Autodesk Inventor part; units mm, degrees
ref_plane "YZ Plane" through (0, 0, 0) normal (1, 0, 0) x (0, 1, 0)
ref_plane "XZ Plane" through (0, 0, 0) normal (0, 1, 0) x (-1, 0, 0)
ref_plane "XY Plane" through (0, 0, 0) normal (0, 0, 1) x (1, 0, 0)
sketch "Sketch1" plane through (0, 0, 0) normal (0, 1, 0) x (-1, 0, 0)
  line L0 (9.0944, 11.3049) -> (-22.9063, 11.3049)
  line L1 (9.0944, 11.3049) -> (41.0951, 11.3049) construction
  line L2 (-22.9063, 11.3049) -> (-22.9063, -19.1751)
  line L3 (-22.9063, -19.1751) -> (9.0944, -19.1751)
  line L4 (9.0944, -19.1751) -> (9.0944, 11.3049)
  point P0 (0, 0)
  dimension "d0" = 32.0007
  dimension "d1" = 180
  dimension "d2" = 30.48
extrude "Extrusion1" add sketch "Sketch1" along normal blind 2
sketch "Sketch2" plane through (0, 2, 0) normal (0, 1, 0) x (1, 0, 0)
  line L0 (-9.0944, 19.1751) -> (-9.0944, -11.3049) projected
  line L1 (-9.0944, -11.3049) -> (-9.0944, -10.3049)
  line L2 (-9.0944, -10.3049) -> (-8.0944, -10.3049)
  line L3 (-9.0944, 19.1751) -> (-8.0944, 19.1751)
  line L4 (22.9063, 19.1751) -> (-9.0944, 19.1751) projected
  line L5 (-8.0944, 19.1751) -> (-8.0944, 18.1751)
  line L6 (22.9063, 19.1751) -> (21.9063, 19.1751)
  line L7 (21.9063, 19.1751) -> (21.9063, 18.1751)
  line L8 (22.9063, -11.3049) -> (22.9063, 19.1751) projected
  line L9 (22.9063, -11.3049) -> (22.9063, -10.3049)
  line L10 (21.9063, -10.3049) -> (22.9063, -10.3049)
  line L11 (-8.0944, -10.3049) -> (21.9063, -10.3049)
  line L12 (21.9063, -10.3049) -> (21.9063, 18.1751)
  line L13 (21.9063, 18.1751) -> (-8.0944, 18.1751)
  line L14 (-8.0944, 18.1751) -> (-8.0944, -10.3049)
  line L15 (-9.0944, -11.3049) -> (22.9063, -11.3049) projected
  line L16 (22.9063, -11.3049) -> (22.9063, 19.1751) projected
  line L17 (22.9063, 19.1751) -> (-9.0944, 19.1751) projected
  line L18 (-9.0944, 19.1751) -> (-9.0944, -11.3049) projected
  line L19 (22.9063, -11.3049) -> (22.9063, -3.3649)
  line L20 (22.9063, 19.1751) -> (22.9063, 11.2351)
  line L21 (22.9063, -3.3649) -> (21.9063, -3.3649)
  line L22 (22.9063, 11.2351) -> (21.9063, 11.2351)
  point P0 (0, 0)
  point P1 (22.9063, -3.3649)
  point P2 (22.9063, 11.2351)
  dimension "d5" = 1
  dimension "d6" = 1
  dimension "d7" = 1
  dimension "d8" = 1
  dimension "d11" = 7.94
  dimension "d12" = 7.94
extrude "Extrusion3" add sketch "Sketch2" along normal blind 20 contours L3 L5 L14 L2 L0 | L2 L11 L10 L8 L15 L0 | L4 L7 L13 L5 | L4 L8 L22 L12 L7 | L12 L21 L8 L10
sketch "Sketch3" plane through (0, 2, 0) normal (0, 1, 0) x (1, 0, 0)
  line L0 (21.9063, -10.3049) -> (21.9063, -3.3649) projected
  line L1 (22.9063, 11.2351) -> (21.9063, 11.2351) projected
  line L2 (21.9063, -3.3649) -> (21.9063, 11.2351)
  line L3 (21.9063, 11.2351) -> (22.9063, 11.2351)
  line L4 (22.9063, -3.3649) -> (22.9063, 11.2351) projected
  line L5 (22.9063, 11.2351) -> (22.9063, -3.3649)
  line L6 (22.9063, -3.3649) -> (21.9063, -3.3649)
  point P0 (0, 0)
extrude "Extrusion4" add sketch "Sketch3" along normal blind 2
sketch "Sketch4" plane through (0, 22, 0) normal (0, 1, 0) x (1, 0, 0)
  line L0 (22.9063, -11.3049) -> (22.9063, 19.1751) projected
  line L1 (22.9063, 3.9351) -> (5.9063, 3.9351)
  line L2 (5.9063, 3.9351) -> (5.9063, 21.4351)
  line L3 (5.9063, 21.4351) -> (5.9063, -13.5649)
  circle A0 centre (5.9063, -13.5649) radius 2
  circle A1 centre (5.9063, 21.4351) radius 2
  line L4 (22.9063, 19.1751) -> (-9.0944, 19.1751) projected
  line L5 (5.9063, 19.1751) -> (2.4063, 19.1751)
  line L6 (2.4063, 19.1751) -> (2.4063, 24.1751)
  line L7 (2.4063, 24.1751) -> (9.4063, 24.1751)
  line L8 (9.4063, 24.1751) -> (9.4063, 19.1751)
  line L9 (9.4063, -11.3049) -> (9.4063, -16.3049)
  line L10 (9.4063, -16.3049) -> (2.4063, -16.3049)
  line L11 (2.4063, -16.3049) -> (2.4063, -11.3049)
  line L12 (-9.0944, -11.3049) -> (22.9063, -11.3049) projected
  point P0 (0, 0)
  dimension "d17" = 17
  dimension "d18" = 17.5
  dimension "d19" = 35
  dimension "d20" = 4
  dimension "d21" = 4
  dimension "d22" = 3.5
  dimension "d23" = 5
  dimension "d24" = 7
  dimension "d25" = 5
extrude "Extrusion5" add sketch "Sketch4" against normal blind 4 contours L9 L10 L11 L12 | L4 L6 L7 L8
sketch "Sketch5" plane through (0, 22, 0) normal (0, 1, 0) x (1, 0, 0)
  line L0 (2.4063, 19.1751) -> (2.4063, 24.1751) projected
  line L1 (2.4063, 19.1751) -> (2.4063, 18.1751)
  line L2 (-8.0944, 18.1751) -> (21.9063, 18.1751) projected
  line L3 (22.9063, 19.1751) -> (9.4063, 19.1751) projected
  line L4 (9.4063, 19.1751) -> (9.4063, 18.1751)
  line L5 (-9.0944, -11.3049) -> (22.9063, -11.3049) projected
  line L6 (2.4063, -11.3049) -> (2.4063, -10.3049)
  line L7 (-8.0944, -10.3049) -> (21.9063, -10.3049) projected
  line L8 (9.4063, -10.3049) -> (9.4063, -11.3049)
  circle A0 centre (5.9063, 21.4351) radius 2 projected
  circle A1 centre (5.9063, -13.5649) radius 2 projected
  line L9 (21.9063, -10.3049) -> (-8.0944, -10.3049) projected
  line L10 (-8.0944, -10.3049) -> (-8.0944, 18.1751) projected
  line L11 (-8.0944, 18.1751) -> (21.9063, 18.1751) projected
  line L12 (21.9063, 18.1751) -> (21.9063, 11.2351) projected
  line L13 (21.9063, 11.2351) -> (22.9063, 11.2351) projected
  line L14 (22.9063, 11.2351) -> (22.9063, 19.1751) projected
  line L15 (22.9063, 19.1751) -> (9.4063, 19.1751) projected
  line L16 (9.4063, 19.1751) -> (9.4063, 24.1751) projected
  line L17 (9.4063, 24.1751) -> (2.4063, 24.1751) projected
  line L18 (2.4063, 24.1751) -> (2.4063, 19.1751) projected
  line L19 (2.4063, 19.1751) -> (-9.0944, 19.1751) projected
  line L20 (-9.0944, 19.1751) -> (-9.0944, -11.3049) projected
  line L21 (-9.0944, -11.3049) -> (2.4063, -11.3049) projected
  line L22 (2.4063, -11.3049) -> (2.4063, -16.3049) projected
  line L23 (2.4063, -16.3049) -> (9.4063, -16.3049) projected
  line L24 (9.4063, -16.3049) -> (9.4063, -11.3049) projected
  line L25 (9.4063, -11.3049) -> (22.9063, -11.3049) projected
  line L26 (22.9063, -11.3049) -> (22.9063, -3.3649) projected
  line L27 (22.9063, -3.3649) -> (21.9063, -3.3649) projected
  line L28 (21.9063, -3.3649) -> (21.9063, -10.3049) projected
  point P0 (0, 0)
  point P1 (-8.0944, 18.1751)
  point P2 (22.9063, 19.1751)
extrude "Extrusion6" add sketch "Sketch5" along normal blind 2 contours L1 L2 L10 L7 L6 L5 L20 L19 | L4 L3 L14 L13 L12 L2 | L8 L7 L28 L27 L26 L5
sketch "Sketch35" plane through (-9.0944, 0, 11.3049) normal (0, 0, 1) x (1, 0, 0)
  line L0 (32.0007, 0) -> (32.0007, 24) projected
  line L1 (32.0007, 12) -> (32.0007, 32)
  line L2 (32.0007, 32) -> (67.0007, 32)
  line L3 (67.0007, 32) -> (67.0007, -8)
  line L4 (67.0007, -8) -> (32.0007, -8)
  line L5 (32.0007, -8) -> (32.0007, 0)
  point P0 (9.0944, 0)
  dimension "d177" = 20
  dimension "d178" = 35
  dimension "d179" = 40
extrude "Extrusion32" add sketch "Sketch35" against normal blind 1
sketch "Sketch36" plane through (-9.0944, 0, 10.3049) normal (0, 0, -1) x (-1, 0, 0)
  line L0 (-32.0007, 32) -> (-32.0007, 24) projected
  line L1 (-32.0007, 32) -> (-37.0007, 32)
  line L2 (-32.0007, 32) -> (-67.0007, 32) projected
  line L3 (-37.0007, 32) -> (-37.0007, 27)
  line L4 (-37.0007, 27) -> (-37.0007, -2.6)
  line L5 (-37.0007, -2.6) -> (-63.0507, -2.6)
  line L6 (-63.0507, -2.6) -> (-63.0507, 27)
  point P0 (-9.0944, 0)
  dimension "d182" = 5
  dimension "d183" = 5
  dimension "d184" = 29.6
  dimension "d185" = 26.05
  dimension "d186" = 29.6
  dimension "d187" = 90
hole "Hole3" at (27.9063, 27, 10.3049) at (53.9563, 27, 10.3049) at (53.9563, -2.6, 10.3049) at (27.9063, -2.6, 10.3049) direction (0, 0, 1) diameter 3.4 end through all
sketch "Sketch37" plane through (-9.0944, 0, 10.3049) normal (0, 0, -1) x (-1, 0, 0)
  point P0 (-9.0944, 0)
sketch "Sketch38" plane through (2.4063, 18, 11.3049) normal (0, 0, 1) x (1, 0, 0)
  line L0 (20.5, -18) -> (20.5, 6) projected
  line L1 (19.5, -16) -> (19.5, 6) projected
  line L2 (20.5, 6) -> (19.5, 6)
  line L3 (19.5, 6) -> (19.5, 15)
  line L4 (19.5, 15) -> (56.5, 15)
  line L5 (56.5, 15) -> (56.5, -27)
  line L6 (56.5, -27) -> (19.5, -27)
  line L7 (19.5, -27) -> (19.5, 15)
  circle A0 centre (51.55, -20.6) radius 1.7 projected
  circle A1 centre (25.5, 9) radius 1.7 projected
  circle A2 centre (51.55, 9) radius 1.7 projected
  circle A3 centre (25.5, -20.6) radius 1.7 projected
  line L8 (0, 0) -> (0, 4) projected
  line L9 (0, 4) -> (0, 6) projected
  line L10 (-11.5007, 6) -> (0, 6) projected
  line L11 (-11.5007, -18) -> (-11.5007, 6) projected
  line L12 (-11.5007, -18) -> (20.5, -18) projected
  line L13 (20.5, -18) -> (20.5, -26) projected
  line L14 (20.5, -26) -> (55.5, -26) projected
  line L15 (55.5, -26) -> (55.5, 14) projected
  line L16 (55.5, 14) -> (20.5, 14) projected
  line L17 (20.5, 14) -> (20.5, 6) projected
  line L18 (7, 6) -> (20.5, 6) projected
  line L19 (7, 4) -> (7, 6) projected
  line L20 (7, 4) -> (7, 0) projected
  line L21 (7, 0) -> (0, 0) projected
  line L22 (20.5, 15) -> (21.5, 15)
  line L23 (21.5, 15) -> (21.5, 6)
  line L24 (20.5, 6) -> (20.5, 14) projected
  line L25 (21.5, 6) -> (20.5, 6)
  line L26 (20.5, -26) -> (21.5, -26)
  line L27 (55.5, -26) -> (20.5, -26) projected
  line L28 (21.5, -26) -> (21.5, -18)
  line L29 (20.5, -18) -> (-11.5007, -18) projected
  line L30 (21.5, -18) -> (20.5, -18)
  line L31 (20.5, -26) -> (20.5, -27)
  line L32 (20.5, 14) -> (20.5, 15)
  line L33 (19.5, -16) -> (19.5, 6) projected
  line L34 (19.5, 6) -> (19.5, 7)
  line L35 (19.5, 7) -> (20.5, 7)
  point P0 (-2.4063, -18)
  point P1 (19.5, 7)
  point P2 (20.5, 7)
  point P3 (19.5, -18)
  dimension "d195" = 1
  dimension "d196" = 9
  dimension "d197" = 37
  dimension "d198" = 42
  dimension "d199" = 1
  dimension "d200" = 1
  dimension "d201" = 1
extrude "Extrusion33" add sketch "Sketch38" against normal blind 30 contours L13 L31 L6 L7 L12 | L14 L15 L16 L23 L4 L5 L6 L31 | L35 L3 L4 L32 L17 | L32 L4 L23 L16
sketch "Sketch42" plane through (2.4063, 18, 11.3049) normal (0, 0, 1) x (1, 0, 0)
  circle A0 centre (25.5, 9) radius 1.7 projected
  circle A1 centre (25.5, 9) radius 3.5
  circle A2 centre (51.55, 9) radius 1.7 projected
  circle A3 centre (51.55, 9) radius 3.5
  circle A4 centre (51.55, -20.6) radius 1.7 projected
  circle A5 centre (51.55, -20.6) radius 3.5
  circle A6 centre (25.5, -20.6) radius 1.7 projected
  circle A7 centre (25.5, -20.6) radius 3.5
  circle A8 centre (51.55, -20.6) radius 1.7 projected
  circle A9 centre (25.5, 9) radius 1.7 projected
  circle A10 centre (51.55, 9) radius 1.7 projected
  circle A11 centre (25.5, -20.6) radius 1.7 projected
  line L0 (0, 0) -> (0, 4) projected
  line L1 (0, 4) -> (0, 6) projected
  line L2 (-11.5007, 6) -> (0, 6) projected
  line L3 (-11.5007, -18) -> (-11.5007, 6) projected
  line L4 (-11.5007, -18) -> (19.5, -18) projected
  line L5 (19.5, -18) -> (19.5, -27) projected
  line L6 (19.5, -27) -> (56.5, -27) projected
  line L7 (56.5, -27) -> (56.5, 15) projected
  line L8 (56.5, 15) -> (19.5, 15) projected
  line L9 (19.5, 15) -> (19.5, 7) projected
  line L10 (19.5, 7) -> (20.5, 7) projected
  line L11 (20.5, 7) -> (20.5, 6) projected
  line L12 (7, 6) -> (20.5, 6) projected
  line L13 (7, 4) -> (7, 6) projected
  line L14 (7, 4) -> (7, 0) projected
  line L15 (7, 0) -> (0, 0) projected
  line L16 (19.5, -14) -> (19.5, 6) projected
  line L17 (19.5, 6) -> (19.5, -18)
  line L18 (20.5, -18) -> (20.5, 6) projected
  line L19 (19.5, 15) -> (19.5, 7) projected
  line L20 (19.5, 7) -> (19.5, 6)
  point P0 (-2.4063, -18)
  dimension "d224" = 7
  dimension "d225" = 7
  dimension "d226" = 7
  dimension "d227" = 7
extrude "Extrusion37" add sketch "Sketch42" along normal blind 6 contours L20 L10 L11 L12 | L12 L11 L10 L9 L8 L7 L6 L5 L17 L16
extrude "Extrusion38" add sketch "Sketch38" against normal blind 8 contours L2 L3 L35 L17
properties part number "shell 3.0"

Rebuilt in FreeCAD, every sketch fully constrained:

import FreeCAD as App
import Part
import Sketcher
from FreeCAD import Vector
Q = App.Units.Quantity


def add_polygon(sketch, points):
    """Adds a closed chain of lines whose ends are joined by coincident constraints."""
    first, n = sketch.GeometryCount, len(points)
    for a, b in zip(points, points[1:] + points[:1]):
        sketch.addGeometry(Part.LineSegment(App.Vector(*a, 0), App.Vector(*b, 0)), False)
    for i in range(n):
        sketch.addConstraint(Sketcher.Constraint("Coincident", first + i, 2, first + (i + 1) % n, 1))

doc = App.newDocument("Part")
body = doc.addObject("PartDesign::Body", "Body")

# Sketch on XZ plane
sketch1 = doc.addObject("Sketcher::SketchObject", "Sketch")
body.addObject(sketch1)
sketch1.AttachmentSupport = (doc.XZ_Plane, [""])
sketch1.MapMode = "FlatFace"
add_polygon(sketch1, [(-9, -19), (-9, 11), (23, 11), (23, -19)])  # lines 0-3
sketch1.addConstraint([
    Sketcher.Constraint("Vertical", 0),
    Sketcher.Constraint("Horizontal", 1),
    Sketcher.Constraint("Vertical", 2),
    Sketcher.Constraint("Horizontal", 3),
    Sketcher.Constraint("DistanceY", 0, 1, 0, 2, Q("30.48 mm")),
    Sketcher.Constraint("DistanceX", 1, 1, 1, 2, Q("32.0007 mm")),
    Sketcher.Constraint("DistanceY", -1, 1, 0, 2, Q("11.305 mm")),
    Sketcher.Constraint("DistanceX", 0, 2, -1, 1, Q("9.0944 mm")),
])
pad1 = doc.addObject("PartDesign::Pad", "Pad")
body.addObject(pad1)
pad1.Profile = sketch1
pad1.Length = 2
pad1.Reversed = True

# Sketch on XZ plane
sketch2 = doc.addObject("Sketcher::SketchObject", "Sketch001")
body.addObject(sketch2)
sketch2.AttachmentSupport = (doc.XZ_Plane, [""])
sketch2.MapMode = "FlatFace"
sketch2.AttachmentOffset = App.Placement(Vector(0, 0, -2), App.Rotation())
add_polygon(sketch2, [(-9.1, -19.2), (-9.1, 11.3), (22.9, 11.3), (22.9, 3.4), (21.9, 3.4), (21.9, 10.3), (-8.1, 10.3), (-8.1, -18.2), (21.9, -18.2), (21.9, -11.2), (22.9, -11.2), (22.9, -19.2)])  # lines 0-11
sketch2.addConstraint([
    Sketcher.Constraint("Vertical", 0),
    Sketcher.Constraint("Horizontal", 1),
    Sketcher.Constraint("Vertical", 2),
    Sketcher.Constraint("Horizontal", 3),
    Sketcher.Constraint("Vertical", 4),
    Sketcher.Constraint("Horizontal", 5),
    Sketcher.Constraint("Vertical", 6),
    Sketcher.Constraint("Horizontal", 7),
    Sketcher.Constraint("Vertical", 8),
    Sketcher.Constraint("Horizontal", 9),
    Sketcher.Constraint("Vertical", 10),
    Sketcher.Constraint("Horizontal", 11),
    Sketcher.Constraint("Vertical", 4, 2, 7, 2),
    Sketcher.Constraint("Vertical", 2, 2, 9, 2),
    Sketcher.Constraint("Equal", 4, 8),
    Sketcher.Constraint("Equal", 2, 10),
    Sketcher.Constraint("DistanceX", 3, 2, 3, 1, Q("1 mm")),
    Sketcher.Constraint("DistanceY", 4, 2, 1, 2, Q("1 mm")),
    Sketcher.Constraint("DistanceX", 0, 2, 5, 2, Q("1 mm")),
    Sketcher.Constraint("DistanceY", 2, 2, 2, 1, Q("7.94 mm")),
    Sketcher.Constraint("DistanceY", 0, 1, 0, 2, Q("30.48 mm")),
    Sketcher.Constraint("DistanceX", 1, 1, 1, 2, Q("32.0007 mm")),
    Sketcher.Constraint("DistanceY", -1, 1, 0, 2, Q("11.305 mm")),
    Sketcher.Constraint("DistanceX", 0, 2, -1, 1, Q("9.0944 mm")),
])
pad2 = doc.addObject("PartDesign::Pad", "Pad001")
body.addObject(pad2)
pad2.Profile = sketch2
pad2.Length = 20
pad2.Reversed = True

# Sketch on XZ plane
sketch3 = doc.addObject("Sketcher::SketchObject", "Sketch002")
body.addObject(sketch3)
sketch3.AttachmentSupport = (doc.XZ_Plane, [""])
sketch3.MapMode = "FlatFace"
sketch3.AttachmentOffset = App.Placement(Vector(0, 0, -2), App.Rotation())
add_polygon(sketch3, [(22.9, 3.4), (22.9, -11.2), (21.9, -11.2), (21.9, 3.4)])  # lines 0-3
sketch3.addConstraint([
    Sketcher.Constraint("Vertical", 0),
    Sketcher.Constraint("Horizontal", 1),
    Sketcher.Constraint("Vertical", 2),
    Sketcher.Constraint("Horizontal", 3),
    Sketcher.Constraint("DistanceX", 1, 2, 1, 1, Q("1 mm")),
    Sketcher.Constraint("DistanceY", 0, 2, 0, 1, Q("14.6 mm")),
    Sketcher.Constraint("DistanceY", 0, 2, -1, 1, Q("11.235 mm")),
    Sketcher.Constraint("DistanceX", -1, 1, 0, 2, Q("22.9063 mm")),
])
pad3 = doc.addObject("PartDesign::Pad", "Pad002")
body.addObject(pad3)
pad3.Profile = sketch3
pad3.Length = 2
pad3.Reversed = True

# Sketch on XZ plane
sketch4 = doc.addObject("Sketcher::SketchObject", "Sketch003")
body.addObject(sketch4)
sketch4.AttachmentSupport = (doc.XZ_Plane, [""])
sketch4.MapMode = "FlatFace"
sketch4.AttachmentOffset = App.Placement(Vector(0, 0, -22), App.Rotation())
add_polygon(sketch4, [(9.4, 16.3), (9.4, 11.3), (5.9, 11.3), (2.4, 11.3), (2.4, 16.3)])  # lines 0-4
sketch4.addGeometry(Part.Circle(Vector(5.9, 13.6, 0), Vector(0, 0, 1), 2), False)  # 5
add_polygon(sketch4, [(5.9, -19.2), (9.4, -19.2), (9.4, -24.2), (2.4, -24.2), (2.4, -19.2)])  # lines 6-10
sketch4.addGeometry(Part.Circle(Vector(5.9, -21.4, 0), Vector(0, 0, 1), 2), False)  # 11
sketch4.addConstraint([
    Sketcher.Constraint("Vertical", 0),
    Sketcher.Constraint("Horizontal", 1),
    Sketcher.Constraint("Horizontal", 2),
    Sketcher.Constraint("Vertical", 3),
    Sketcher.Constraint("Horizontal", 4),
    Sketcher.Constraint("Horizontal", 6),
    Sketcher.Constraint("Vertical", 7),
    Sketcher.Constraint("Horizontal", 8),
    Sketcher.Constraint("Vertical", 9),
    Sketcher.Constraint("Horizontal", 10),
    Sketcher.Constraint("Equal", 5, 11),
    Sketcher.Constraint("Vertical", 5, 3, 11, 3),
    Sketcher.Constraint("Vertical", 11, 3, 1, 2),
    Sketcher.Constraint("Vertical", 4, 2, 6, 2),
    Sketcher.Constraint("Vertical", 3, 2, 8, 2),
    Sketcher.Constraint("Vertical", 1, 2, 10, 2),
    Sketcher.Constraint("Equal", 1, 2),
    Sketcher.Constraint("Equal", 3, 7),
    Sketcher.Constraint("Diameter", 5, Q("4 mm")),
    Sketcher.Constraint("DistanceX", 4, 1, 4, 2, Q("7 mm")),
    Sketcher.Constraint("DistanceY", 0, 2, 0, 1, Q("5 mm")),
    Sketcher.Constraint("DistanceY", 11, 3, 5, 3, Q("35 mm")),
    Sketcher.Constraint("DistanceY", 0, 2, 5, 3, Q("2.26 mm")),
    Sketcher.Constraint("DistanceY", 11, 3, 6, 2, Q("2.26 mm")),
    Sketcher.Constraint("DistanceY", -1, 1, 5, 3, Q("13.565 mm")),
    Sketcher.Constraint("DistanceX", -1, 1, 5, 3, Q("5.9063 mm")),
])
pad4 = doc.addObject("PartDesign::Pad", "Pad003")
body.addObject(pad4)
pad4.Profile = sketch4
pad4.Length = 4

# Sketch on XZ plane
sketch5 = doc.addObject("Sketcher::SketchObject", "Sketch004")
body.addObject(sketch5)
sketch5.AttachmentSupport = (doc.XZ_Plane, [""])
sketch5.MapMode = "FlatFace"
sketch5.AttachmentOffset = App.Placement(Vector(0, 0, -22), App.Rotation())
add_polygon(sketch5, [(2.4, -18.2), (2.4, -19.2), (-9.1, -19.2), (-9.1, 11.3), (2.4, 11.3), (2.4, 10.3), (-8.1, 10.3), (-8.1, -18.2)])  # lines 0-7
add_polygon(sketch5, [(9.4, -19.2), (9.4, -18.2), (21.9, -18.2), (21.9, -11.2), (22.9, -11.2), (22.9, -19.2)])  # lines 8-13
add_polygon(sketch5, [(9.4, 10.3), (9.4, 11.3), (22.9, 11.3), (22.9, 3.4), (21.9, 3.4), (21.9, 10.3)])  # lines 14-19
sketch5.addConstraint([
    Sketcher.Constraint("Vertical", 0),
    Sketcher.Constraint("Horizontal", 1),
    Sketcher.Constraint("Vertical", 2),
    Sketcher.Constraint("Horizontal", 3),
    Sketcher.Constraint("Vertical", 4),
    Sketcher.Constraint("Horizontal", 5),
    Sketcher.Constraint("Vertical", 6),
    Sketcher.Constraint("Horizontal", 7),
    Sketcher.Constraint("Vertical", 8),
    Sketcher.Constraint("Horizontal", 9),
    Sketcher.Constraint("Vertical", 10),
    Sketcher.Constraint("Horizontal", 11),
    Sketcher.Constraint("Vertical", 12),
    Sketcher.Constraint("Horizontal", 13),
    Sketcher.Constraint("Vertical", 14),
    Sketcher.Constraint("Horizontal", 15),
    Sketcher.Constraint("Vertical", 16),
    Sketcher.Constraint("Horizontal", 17),
    Sketcher.Constraint("Vertical", 18),
    Sketcher.Constraint("Horizontal", 19),
    Sketcher.Constraint("Horizontal", 7, 2, 8, 2),
    Sketcher.Constraint("Horizontal", 1, 2, 12, 2),
    Sketcher.Constraint("Horizontal", 3, 2, 14, 2),
    Sketcher.Constraint("Horizontal", 5, 2, 18, 2),
    Sketcher.Constraint("Vertical", 0, 2, 3, 2),
    Sketcher.Constraint("Vertical", 13, 2, 14, 2),
    Sketcher.Constraint("Vertical", 12, 2, 15, 2),
    Sketcher.Constraint("Vertical", 10, 2, 17, 2),
    Sketcher.Constraint("Equal", 17, 0),
    Sketcher.Constraint("Equal", 0, 4),
    Sketcher.Constraint("Equal", 12, 16),
    Sketcher.Constraint("DistanceX", 11, 1, 11, 2, Q("1 mm")),
    Sketcher.Constraint("DistanceX", 9, 1, 9, 2, Q("12.5 mm")),
    Sketcher.Constraint("DistanceX", 2, 2, 5, 2, Q("1 mm")),
    Sketcher.Constraint("DistanceX", 7, 2, 8, 2, Q("7 mm")),
    Sketcher.Constraint("DistanceY", 2, 1, 2, 2, Q("30.48 mm")),
    Sketcher.Constraint("DistanceY", 10, 1, 10, 2, Q("6.94 mm")),
    Sketcher.Constraint("DistanceX", 1, 2, 1, 1, Q("11.5007 mm")),
    Sketcher.Constraint("DistanceY", 0, 2, -1, 1, Q("19.175 mm")),
    Sketcher.Constraint("DistanceX", -1, 1, 0, 2, Q("2.4063 mm")),
])
pad5 = doc.addObject("PartDesign::Pad", "Pad004")
body.addObject(pad5)
pad5.Profile = sketch5
pad5.Length = 2
pad5.Reversed = True

# Sketch on XY plane
sketch6 = doc.addObject("Sketcher::SketchObject", "Sketch005")
body.addObject(sketch6)
sketch6.AttachmentSupport = (doc.XY_Plane, [""])
sketch6.MapMode = "FlatFace"
sketch6.AttachmentOffset = App.Placement(Vector(0, 0, 11.3049), App.Rotation())
add_polygon(sketch6, [(23, 32), (23, -8), (58, -8), (58, 32)])  # lines 0-3
sketch6.addConstraint([
    Sketcher.Constraint("Vertical", 0),
    Sketcher.Constraint("Horizontal", 1),
    Sketcher.Constraint("Vertical", 2),
    Sketcher.Constraint("Horizontal", 3),
    Sketcher.Constraint("DistanceX", 1, 1, 1, 2, Q("35 mm")),
    Sketcher.Constraint("DistanceY", 0, 2, 0, 1, Q("40 mm")),
    Sketcher.Constraint("DistanceY", 0, 2, -1, 1, Q("8 mm")),
    Sketcher.Constraint("DistanceX", -1, 1, 0, 2, Q("22.9063 mm")),
])
pad6 = doc.addObject("PartDesign::Pad", "Pad005")
body.addObject(pad6)
pad6.Profile = sketch6
pad6.Length = 1
pad6.Reversed = True

# Sketch on XY plane
sketch7 = doc.addObject("Sketcher::SketchObject", "Sketch006")
body.addObject(sketch7)
sketch7.AttachmentSupport = (doc.XY_Plane, [""])
sketch7.MapMode = "FlatFace"
sketch7.AttachmentOffset = App.Placement(Vector(0, 0, 10.3049), App.Rotation())
sketch7.addGeometry([
    Part.Circle(Vector(27.9, 27, 0), Vector(0, 0, 1), 1.7),
    Part.Circle(Vector(54, 27, 0), Vector(0, 0, 1), 1.7),
    Part.Circle(Vector(54, -2.6, 0), Vector(0, 0, 1), 1.7),
    Part.Circle(Vector(27.9, -2.6, 0), Vector(0, 0, 1), 1.7),
], False)
sketch7.addConstraint([
    Sketcher.Constraint("Equal", 0, 1),
    Sketcher.Constraint("Equal", 1, 2),
    Sketcher.Constraint("Equal", 2, 3),
    Sketcher.Constraint("Horizontal", 0, 3, 1, 3),
    Sketcher.Constraint("Horizontal", 2, 3, 3, 3),
    Sketcher.Constraint("Vertical", 1, 3, 2, 3),
    Sketcher.Constraint("Vertical", 0, 3, 3, 3),
    Sketcher.Constraint("Diameter", 0, Q("3.4 mm")),
    Sketcher.Constraint("DistanceY", -1, 1, 0, 3, Q("27 mm")),
    Sketcher.Constraint("DistanceY", 2, 3, -1, 1, Q("2.6 mm")),
    Sketcher.Constraint("DistanceX", 0, 3, 1, 3, Q("26.05 mm")),
    Sketcher.Constraint("DistanceX", -1, 1, 0, 3, Q("27.9063 mm")),
])
doc.recompute()
hole = doc.addObject("PartDesign::Hole", "Hole")
body.addObject(hole)
hole.Profile = sketch7
hole.ThreadType = "None"
hole.Diameter = 3.4
hole.DepthType = "ThroughAll"
hole.Reversed = True

# Sketch on XY plane
sketch8 = doc.addObject("Sketcher::SketchObject", "Sketch007")
body.addObject(sketch8)
sketch8.AttachmentSupport = (doc.XY_Plane, [""])
sketch8.MapMode = "FlatFace"
sketch8.AttachmentOffset = App.Placement(Vector(0, 0, 11.3049), App.Rotation())
add_polygon(sketch8, [(22.9, -8), (22.9, 0), (21.9, 0), (21.9, -9), (58.9, -9), (58.9, 33), (21.9, 33), (21.9, 25), (22.9, 25), (22.9, 32), (57.9, 32), (57.9, -8)])  # lines 0-11
sketch8.addConstraint([
    Sketcher.Constraint("Vertical", 0),
    Sketcher.Constraint("Horizontal", 1),
    Sketcher.Constraint("Vertical", 2),
    Sketcher.Constraint("Horizontal", 3),
    Sketcher.Constraint("Vertical", 4),
    Sketcher.Constraint("Horizontal", 5),
    Sketcher.Constraint("Vertical", 6),
    Sketcher.Constraint("Horizontal", 7),
    Sketcher.Constraint("Vertical", 8),
    Sketcher.Constraint("Horizontal", 9),
    Sketcher.Constraint("Vertical", 10),
    Sketcher.Constraint("Horizontal", 11),
    Sketcher.Constraint("PointOnObject", 0, 2, -1),
    Sketcher.Constraint("Vertical", 2, 2, 5, 2),
    Sketcher.Constraint("Vertical", 0, 2, 7, 2),
    Sketcher.Constraint("Equal", 0, 6),
    Sketcher.Constraint("DistanceX", 1, 2, 1, 1, Q("1 mm")),
    Sketcher.Constraint("DistanceX", 3, 1, 3, 2, Q("37 mm")),
    Sketcher.Constraint("DistanceY", 2, 2, 2, 1, Q("9 mm")),
    Sketcher.Constraint("DistanceY", 4, 1, 4, 2, Q("42 mm")),
    Sketcher.Constraint("DistanceY", 8, 2, 5, 2, Q("1 mm")),
    Sketcher.Constraint("DistanceX", 9, 2, 4, 2, Q("1 mm")),
    Sketcher.Constraint("DistanceY", 3, 2, 10, 2, Q("1 mm")),
    Sketcher.Constraint("DistanceX", -1, 1, 0, 2, Q("22.9063 mm")),
])
pad7 = doc.addObject("PartDesign::Pad", "Pad006")
body.addObject(pad7)
pad7.Profile = sketch8
pad7.Length = 30
pad7.Reversed = True

# Sketch on XY plane
sketch9 = doc.addObject("Sketcher::SketchObject", "Sketch008")
body.addObject(sketch9)
sketch9.AttachmentSupport = (doc.XY_Plane, [""])
sketch9.MapMode = "FlatFace"
sketch9.AttachmentOffset = App.Placement(Vector(0, 0, 11.3049), App.Rotation())
add_polygon(sketch9, [(21.9, -9), (58.9, -9), (58.9, 33), (21.9, 33)])  # lines 0-3
sketch9.addGeometry(Part.Circle(Vector(54, -2.6, 0), Vector(0, 0, 1), 3.5), False)  # 4
sketch9.addGeometry(Part.Circle(Vector(27.9, 27, 0), Vector(0, 0, 1), 3.5), False)  # 5
sketch9.addGeometry(Part.Circle(Vector(54, 27, 0), Vector(0, 0, 1), 3.5), False)  # 6
sketch9.addGeometry(Part.Circle(Vector(27.9, -2.6, 0), Vector(0, 0, 1), 3.5), False)  # 7
sketch9.addConstraint([
    Sketcher.Constraint("Horizontal", 0),
    Sketcher.Constraint("Vertical", 1),
    Sketcher.Constraint("Horizontal", 2),
    Sketcher.Constraint("Vertical", 3),
    Sketcher.Constraint("Equal", 4, 5),
    Sketcher.Constraint("Equal", 5, 6),
    Sketcher.Constraint("Equal", 6, 7),
    Sketcher.Constraint("Horizontal", 5, 3, 6, 3),
    Sketcher.Constraint("Horizontal", 4, 3, 7, 3),
    Sketcher.Constraint("Vertical", 4, 3, 6, 3),
    Sketcher.Constraint("Vertical", 5, 3, 7, 3),
    Sketcher.Constraint("Diameter", 4, Q("7 mm")),
    Sketcher.Constraint("DistanceX", 0, 1, 0, 2, Q("37 mm")),
    Sketcher.Constraint("DistanceY", 1, 1, 1, 2, Q("42 mm")),
    Sketcher.Constraint("DistanceY", -1, 1, 5, 3, Q("27 mm")),
    Sketcher.Constraint("DistanceY", 0, 2, -1, 1, Q("9 mm")),
    Sketcher.Constraint("DistanceX", 7, 3, 0, 2, Q("31 mm")),
    Sketcher.Constraint("DistanceY", 4, 3, -1, 1, Q("2.6 mm")),
    Sketcher.Constraint("DistanceX", 5, 3, 4, 3, Q("26.05 mm")),
    Sketcher.Constraint("DistanceX", -1, 1, 4, 3, Q("53.9563 mm")),
])
pad8 = doc.addObject("PartDesign::Pad", "Pad007")
body.addObject(pad8)
pad8.Profile = sketch9
pad8.Length = 6

# Sketch on XY plane
sketch10 = doc.addObject("Sketcher::SketchObject", "Sketch009")
body.addObject(sketch10)
sketch10.AttachmentSupport = (doc.XY_Plane, [""])
sketch10.MapMode = "FlatFace"
sketch10.AttachmentOffset = App.Placement(Vector(0, 0, 11.3049), App.Rotation())
add_polygon(sketch10, [(21.9, 24), (22.9, 24), (22.9, 25), (21.9, 25)])  # lines 0-3
sketch10.addConstraint([
    Sketcher.Constraint("Horizontal", 0),
    Sketcher.Constraint("Vertical", 1),
    Sketcher.Constraint("Horizontal", 2),
    Sketcher.Constraint("Vertical", 3),
    Sketcher.Constraint("Equal", 2, 1),
    Sketcher.Constraint("DistanceX", 0, 1, 0, 2, Q("1 mm")),
    Sketcher.Constraint("DistanceY", -1, 1, 0, 2, Q("24 mm")),
    Sketcher.Constraint("DistanceX", -1, 1, 0, 2, Q("22.9063 mm")),
])
pad9 = doc.addObject("PartDesign::Pad", "Pad008")
body.addObject(pad9)
pad9.Profile = sketch10
pad9.Length = 8
pad9.Reversed = True

doc.recompute()
